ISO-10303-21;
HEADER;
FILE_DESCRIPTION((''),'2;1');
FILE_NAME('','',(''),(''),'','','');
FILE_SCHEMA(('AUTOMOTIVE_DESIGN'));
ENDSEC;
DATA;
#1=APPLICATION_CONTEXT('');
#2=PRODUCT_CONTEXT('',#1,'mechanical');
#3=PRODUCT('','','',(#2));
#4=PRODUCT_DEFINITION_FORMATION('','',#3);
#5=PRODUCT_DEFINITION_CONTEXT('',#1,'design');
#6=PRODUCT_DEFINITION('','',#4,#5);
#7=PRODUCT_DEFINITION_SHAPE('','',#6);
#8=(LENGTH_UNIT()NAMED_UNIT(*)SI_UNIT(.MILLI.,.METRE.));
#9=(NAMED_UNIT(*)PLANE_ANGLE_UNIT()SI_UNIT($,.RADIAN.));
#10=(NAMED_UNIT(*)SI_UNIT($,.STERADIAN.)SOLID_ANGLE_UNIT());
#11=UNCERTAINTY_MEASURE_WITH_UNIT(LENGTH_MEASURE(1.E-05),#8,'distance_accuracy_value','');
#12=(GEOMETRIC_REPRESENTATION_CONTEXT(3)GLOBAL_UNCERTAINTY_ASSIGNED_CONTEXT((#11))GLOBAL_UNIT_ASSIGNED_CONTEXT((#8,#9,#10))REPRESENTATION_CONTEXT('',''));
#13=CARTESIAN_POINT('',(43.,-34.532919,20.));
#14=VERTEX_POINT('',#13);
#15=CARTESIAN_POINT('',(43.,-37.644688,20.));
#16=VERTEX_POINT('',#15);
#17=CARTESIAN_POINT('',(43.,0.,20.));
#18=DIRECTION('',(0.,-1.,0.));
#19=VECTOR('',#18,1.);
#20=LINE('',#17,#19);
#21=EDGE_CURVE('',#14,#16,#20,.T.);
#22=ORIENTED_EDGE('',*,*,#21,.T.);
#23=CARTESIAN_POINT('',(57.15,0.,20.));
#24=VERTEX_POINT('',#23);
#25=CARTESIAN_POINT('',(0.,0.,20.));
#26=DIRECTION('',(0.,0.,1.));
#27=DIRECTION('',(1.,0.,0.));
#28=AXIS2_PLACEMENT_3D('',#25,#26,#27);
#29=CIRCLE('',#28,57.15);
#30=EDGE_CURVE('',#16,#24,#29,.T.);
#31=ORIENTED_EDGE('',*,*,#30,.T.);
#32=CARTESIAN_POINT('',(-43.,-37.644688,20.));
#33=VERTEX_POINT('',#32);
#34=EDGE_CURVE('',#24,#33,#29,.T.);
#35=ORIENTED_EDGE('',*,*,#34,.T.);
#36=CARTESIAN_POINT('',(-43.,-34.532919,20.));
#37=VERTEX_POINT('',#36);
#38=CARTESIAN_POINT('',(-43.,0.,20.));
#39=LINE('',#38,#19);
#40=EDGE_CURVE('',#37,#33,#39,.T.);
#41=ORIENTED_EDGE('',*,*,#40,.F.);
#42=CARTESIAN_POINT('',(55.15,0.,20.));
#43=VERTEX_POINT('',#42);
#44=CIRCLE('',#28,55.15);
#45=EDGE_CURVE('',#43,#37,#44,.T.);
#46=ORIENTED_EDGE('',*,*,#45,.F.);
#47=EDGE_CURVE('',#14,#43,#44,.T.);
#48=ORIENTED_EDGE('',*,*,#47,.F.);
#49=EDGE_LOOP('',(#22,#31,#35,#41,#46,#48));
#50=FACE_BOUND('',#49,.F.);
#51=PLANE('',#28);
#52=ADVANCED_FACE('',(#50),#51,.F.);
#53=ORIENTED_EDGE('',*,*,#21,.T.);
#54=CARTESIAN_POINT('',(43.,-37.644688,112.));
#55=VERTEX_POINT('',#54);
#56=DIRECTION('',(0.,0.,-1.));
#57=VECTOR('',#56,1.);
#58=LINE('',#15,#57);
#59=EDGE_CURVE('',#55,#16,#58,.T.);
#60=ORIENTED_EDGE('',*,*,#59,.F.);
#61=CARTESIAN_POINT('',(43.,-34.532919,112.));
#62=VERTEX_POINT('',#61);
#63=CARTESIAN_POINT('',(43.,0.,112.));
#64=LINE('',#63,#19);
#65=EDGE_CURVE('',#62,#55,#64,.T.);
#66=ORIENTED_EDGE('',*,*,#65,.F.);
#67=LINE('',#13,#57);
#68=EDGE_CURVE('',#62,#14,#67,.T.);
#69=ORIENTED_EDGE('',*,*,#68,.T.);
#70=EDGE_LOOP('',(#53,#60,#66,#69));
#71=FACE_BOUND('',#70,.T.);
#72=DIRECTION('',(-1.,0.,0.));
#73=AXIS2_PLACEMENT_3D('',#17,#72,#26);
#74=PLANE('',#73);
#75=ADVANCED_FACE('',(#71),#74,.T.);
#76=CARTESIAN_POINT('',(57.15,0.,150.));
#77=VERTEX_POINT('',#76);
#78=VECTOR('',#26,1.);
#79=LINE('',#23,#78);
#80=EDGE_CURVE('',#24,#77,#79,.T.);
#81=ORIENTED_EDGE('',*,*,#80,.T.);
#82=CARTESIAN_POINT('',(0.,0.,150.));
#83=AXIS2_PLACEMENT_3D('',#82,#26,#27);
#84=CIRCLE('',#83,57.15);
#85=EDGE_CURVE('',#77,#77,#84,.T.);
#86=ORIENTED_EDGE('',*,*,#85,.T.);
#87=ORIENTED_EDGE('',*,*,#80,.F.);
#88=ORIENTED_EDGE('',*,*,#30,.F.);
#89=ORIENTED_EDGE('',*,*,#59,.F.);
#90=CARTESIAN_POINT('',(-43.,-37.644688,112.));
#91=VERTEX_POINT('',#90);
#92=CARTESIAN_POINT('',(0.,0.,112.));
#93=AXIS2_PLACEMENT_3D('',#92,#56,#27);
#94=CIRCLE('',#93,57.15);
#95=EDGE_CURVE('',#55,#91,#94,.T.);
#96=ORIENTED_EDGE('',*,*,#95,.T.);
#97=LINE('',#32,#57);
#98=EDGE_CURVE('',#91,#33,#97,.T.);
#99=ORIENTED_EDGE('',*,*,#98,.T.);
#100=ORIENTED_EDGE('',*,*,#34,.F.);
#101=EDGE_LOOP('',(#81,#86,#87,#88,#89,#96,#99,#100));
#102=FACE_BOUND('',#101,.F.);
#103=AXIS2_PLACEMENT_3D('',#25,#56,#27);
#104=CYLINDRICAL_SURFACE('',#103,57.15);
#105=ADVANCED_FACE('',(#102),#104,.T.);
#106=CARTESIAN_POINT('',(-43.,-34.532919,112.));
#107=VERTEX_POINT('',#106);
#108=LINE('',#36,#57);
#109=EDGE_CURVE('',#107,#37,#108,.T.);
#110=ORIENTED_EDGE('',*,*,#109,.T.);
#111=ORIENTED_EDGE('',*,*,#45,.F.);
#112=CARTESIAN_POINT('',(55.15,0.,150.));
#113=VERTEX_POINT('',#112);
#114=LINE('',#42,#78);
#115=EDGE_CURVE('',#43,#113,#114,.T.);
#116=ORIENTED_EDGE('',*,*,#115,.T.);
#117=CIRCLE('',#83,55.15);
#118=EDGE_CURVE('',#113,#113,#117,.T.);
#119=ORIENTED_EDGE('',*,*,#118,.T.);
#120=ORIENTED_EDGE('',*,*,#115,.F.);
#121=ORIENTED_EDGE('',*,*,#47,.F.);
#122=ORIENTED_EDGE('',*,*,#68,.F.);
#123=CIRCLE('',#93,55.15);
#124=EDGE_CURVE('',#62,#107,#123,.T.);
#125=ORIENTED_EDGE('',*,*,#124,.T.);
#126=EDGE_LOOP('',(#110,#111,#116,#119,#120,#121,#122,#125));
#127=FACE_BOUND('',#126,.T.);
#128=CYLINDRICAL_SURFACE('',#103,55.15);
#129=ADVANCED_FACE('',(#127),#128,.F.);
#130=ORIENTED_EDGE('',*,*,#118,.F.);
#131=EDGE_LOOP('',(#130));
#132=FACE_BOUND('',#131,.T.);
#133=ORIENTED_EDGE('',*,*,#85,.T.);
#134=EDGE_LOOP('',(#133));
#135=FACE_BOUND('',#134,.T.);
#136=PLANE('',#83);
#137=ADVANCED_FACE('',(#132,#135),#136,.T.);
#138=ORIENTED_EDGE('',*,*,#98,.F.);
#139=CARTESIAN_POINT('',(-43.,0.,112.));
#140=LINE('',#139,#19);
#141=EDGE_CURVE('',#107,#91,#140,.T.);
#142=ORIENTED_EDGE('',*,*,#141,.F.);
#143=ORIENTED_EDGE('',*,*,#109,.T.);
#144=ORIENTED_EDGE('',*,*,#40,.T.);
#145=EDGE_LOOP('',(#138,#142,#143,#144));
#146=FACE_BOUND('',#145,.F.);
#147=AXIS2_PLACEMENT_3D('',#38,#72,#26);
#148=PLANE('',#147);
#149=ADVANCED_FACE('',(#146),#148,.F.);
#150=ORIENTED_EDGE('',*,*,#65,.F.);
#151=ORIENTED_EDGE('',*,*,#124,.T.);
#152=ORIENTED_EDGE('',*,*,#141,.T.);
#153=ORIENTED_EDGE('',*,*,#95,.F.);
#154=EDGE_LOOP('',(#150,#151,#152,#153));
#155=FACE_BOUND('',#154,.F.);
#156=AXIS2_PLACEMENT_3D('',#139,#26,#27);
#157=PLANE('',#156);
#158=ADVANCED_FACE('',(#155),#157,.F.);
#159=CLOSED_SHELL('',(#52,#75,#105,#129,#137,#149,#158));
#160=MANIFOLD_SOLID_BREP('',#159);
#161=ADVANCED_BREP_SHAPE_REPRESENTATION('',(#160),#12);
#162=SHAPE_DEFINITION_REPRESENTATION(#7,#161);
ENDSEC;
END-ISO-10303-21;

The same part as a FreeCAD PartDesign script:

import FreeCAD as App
import Part
import Sketcher
Q = App.Units.Quantity


def add_polygon(sketch, points):
    """Adds a closed chain of lines whose ends are joined by coincident constraints."""
    first, n = sketch.GeometryCount, len(points)
    for a, b in zip(points, points[1:] + points[:1]):
        sketch.addGeometry(Part.LineSegment(App.Vector(*a, 0), App.Vector(*b, 0)), False)
    for i in range(n):
        sketch.addConstraint(Sketcher.Constraint("Coincident", first + i, 2, first + (i + 1) % n, 1))

doc = App.newDocument("Part")
body = doc.addObject("PartDesign::Body", "Body")

# Sketch on XZ plane
sketch1 = body.newObject("Sketcher::SketchObject", "Sketch")
sketch1.AttachmentSupport = (doc.getObject("XZ_Plane"), [""])
sketch1.MapMode = "FlatFace"
add_polygon(sketch1, [(-43, 112), (-43, 20), (43, 20), (43, 112)])  # lines 0-3
sketch1.addConstraint([
    Sketcher.Constraint("Vertical", 0),
    Sketcher.Constraint("Horizontal", 1),
    Sketcher.Constraint("Vertical", 2),
    Sketcher.Constraint("Horizontal", 3),
    Sketcher.Constraint("DistanceX", 1, 1, 1, 2, Q("86 mm")),
    Sketcher.Constraint("DistanceY", 0, 2, 0, 1, Q("92 mm")),
    Sketcher.Constraint("DistanceX", 0, 2, -1, 1, Q("43 mm")),
    Sketcher.Constraint("DistanceY", -1, 1, 0, 2, Q("20 mm")),
])
pad1 = body.newObject("PartDesign::Pad", "Pad")
pad1.Profile = sketch1
pad1.Length = 68.155048
body2 = doc.addObject("PartDesign::Body", "Body001")

# Sketch on XY plane
sketch2 = body2.newObject("Sketcher::SketchObject", "Sketch001")
sketch2.AttachmentSupport = (doc.getObject("XY_Plane001"), [""])
sketch2.MapMode = "FlatFace"
sketch2.AttachmentOffset = App.Placement(App.Vector(0, 0, 20), App.Rotation())
sketch2.addGeometry([
    Part.Circle(App.Vector(0, 0, 0), App.Vector(0, 0, 1), 57.15),
    Part.Circle(App.Vector(0, 0, 0), App.Vector(0, 0, 1), 55.15),
], False)
sketch2.addConstraint([
    Sketcher.Constraint("Coincident", 0, 3, -1, 1),
    Sketcher.Constraint("Coincident", 1, 3, -1, 1),
    Sketcher.Constraint("Diameter", 0, Q("114.3 mm")),
    Sketcher.Constraint("Diameter", 1, Q("110.3 mm")),
])
pad2 = body2.newObject("PartDesign::Pad", "Pad001")
pad2.Profile = sketch2
pad2.Length = 130
doc.recompute()

boolean = body2.newObject("PartDesign::Boolean", "Boolean")
boolean.Type = "Cut"
boolean.addObjects([body])

doc.recompute()
